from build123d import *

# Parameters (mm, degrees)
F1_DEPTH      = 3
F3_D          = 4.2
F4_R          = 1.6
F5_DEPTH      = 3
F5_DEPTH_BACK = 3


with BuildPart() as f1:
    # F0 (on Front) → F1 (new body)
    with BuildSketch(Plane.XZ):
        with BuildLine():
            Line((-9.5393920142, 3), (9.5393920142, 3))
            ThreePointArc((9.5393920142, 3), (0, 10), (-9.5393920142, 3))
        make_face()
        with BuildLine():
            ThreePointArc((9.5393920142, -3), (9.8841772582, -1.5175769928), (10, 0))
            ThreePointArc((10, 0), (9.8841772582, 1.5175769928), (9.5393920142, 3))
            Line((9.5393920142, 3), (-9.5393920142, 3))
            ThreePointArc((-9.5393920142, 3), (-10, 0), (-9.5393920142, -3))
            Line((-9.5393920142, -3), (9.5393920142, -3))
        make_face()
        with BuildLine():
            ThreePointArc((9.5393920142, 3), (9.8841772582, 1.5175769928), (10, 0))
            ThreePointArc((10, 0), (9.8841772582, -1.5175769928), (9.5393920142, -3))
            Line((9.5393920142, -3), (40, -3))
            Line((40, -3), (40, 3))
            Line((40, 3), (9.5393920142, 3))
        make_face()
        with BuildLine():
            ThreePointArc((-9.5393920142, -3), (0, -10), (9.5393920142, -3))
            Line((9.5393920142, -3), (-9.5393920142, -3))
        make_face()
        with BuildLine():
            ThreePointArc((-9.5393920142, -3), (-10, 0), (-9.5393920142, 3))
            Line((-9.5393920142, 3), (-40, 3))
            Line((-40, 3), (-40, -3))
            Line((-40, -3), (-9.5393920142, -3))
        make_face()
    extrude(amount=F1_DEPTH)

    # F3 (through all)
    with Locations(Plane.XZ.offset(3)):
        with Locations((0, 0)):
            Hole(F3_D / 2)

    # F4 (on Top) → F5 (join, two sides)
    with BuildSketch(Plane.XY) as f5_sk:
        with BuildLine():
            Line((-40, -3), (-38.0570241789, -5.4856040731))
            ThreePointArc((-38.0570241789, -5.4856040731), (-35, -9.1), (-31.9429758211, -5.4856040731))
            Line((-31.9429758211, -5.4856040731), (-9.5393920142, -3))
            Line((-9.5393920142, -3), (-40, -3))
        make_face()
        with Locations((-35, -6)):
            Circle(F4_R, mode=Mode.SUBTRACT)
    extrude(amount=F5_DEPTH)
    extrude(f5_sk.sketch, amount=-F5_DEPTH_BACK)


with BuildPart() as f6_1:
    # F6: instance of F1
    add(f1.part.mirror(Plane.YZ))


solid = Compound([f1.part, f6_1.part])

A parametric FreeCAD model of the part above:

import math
import FreeCAD as App
import Part
import Sketcher

V = App.Vector
Q = App.Units.Quantity

doc = App.newDocument("Part")
params = doc.addObject("Spreadsheet::Sheet", "Params")
for row, (alias, value) in enumerate([
    ("sketch1_radius", "10 mm"),
    ("sketch1_height", "6 mm"),
    ("pad1_length", "3 mm"),
    ("sketch2_diameter", "4.2 mm"),
    ("hole_diameter", "4.2 mm"),
    ("sketch3_diameter", "3.2 mm"),
    ("sketch3_radius", "3.1 mm"),
    ("pad2_length", "3 mm"),
    ("pad2_length2", "3 mm"),
], start=1):
    params.set(f"A{row}", alias)
    params.set(f"B{row}", "=" + value)
    params.setAlias(f"B{row}", alias)

body = doc.addObject("PartDesign::Body", "Body")

# Sketch on XZ plane
sketch1 = body.newObject("Sketcher::SketchObject", "Sketch")
sketch1.AttachmentSupport = (doc.getObject("XZ_Plane"), [""])
sketch1.MapMode = "FlatFace"
sketch1.addGeometry([
    Part.ArcOfCircle(Part.Circle(V(0, 0, 0), V(0, 0, 1), 10), math.radians(17.457603), math.radians(162.542397)),  # 0
    Part.LineSegment(V(-9.539392, 3, 0), V(-40, 3, 0)),  # 1
    Part.LineSegment(V(-40, 3, 0), V(-40, -3, 0)),  # 2
    Part.LineSegment(V(-40, -3, 0), V(-9.539392, -3, 0)),  # 3
    Part.ArcOfCircle(Part.Circle(V(0, 0, 0), V(0, 0, 1), 10), math.radians(-162.542397), math.radians(-17.457603)),  # 4
    Part.LineSegment(V(9.539392, -3, 0), V(40, -3, 0)),  # 5
    Part.LineSegment(V(40, -3, 0), V(40, 3, 0)),  # 6
    Part.LineSegment(V(40, 3, 0), V(9.539392, 3, 0)),  # 7
], False)
sketch1.addConstraint([
    Sketcher.Constraint("Coincident", 0, 2, 1, 1),
    Sketcher.Constraint("Coincident", 1, 2, 2, 1),
    Sketcher.Constraint("Coincident", 2, 2, 3, 1),
    Sketcher.Constraint("Coincident", 3, 2, 4, 1),
    Sketcher.Constraint("Coincident", 4, 2, 5, 1),
    Sketcher.Constraint("Coincident", 5, 2, 6, 1),
    Sketcher.Constraint("Coincident", 6, 2, 7, 1),
    Sketcher.Constraint("Coincident", 7, 2, 0, 1),
    Sketcher.Constraint("Horizontal", 1),
    Sketcher.Constraint("Vertical", 2),
    Sketcher.Constraint("Horizontal", 3),
    Sketcher.Constraint("Horizontal", 5),
    Sketcher.Constraint("Vertical", 6),
    Sketcher.Constraint("Horizontal", 7),
    Sketcher.Constraint("Coincident", 0, 3, -1, 1),
    Sketcher.Constraint("Coincident", 4, 3, -1, 1),
    Sketcher.Constraint("Equal", 0, 4),
    Sketcher.Constraint("Symmetric", 1, 2, 5, 2, -1, 1),
    Sketcher.Constraint("Horizontal", 3, 2, 4, 2),
    Sketcher.Constraint("Horizontal", 1, 2, 6, 2),
    Sketcher.Constraint("Radius", 0, Q("10 mm")),
    Sketcher.Constraint("DistanceY", 2, 2, 2, 1, Q("6 mm")),
    Sketcher.Constraint("DistanceX", 1, 2, -1, 1, Q("40 mm")),
])
sketch1.setExpression("Constraints[20]", "Params.sketch1_radius")
sketch1.setExpression("Constraints[21]", "Params.sketch1_height")
pad1 = body.newObject("PartDesign::Pad", "Pad")
pad1.Profile = sketch1
pad1.setExpression("Length", "Params.pad1_length")

# Sketch on XZ plane
sketch2 = body.newObject("Sketcher::SketchObject", "Sketch001")
sketch2.AttachmentSupport = (doc.getObject("XZ_Plane"), [""])
sketch2.MapMode = "FlatFace"
sketch2.AttachmentOffset = App.Placement(V(0, 0, 3), App.Rotation())
sketch2.addGeometry(Part.Circle(V(0, 0, 0), V(0, 0, 1), 2.1), False)
sketch2.addConstraint([
    Sketcher.Constraint("Coincident", 0, 3, -1, 1),
    Sketcher.Constraint("Diameter", 0, Q("4.2 mm")),
])
sketch2.setExpression("Constraints[1]", "Params.sketch2_diameter")
doc.recompute()
hole = body.newObject("PartDesign::Hole", "Hole")
hole.Profile = sketch2
hole.ThreadType = "None"
hole.setExpression("Diameter", "Params.hole_diameter")
hole.DepthType = "ThroughAll"

# Sketch on XY plane
sketch3 = body.newObject("Sketcher::SketchObject", "Sketch002")
sketch3.AttachmentSupport = (doc.getObject("XY_Plane"), [""])
sketch3.MapMode = "FlatFace"
sketch3.addGeometry([
    Part.LineSegment(V(-40, -3, 0), V(-38.057024, -5.485604, 0)),  # 0
    Part.ArcOfCircle(Part.Circle(V(-35, -6, 0), V(0, 0, 1), 3.1), math.radians(170.448493), math.radians(369.551507)),  # 1
    Part.LineSegment(V(-31.942976, -5.485604, 0), V(-9.539392, -3, 0)),  # 2
    Part.LineSegment(V(-9.539392, -3, 0), V(-40, -3, 0)),  # 3
    Part.Circle(V(-35, -6, 0), V(0, 0, 1), 1.6),  # 4
], False)
sketch3.addConstraint([
    Sketcher.Constraint("Coincident", 0, 2, 1, 1),
    Sketcher.Constraint("Coincident", 1, 2, 2, 1),
    Sketcher.Constraint("Coincident", 2, 2, 3, 1),
    Sketcher.Constraint("Coincident", 3, 2, 0, 1),
    Sketcher.Constraint("Horizontal", 3),
    Sketcher.Constraint("Coincident", 4, 3, 1, 3),
    Sketcher.Constraint("Horizontal", 0, 2, 1, 2),
    Sketcher.Constraint("Diameter", 4, Q("3.2 mm")),
    Sketcher.Constraint("Radius", 1, Q("3.1 mm")),
    Sketcher.Constraint("DistanceX", 1, 3, -1, 1, Q("35 mm")),
    Sketcher.Constraint("DistanceY", 1, 3, -1, 1, Q("6 mm")),
    Sketcher.Constraint("DistanceY", 2, 2, -1, 1, Q("3 mm")),
    Sketcher.Constraint("DistanceX", 3, 2, -1, 1, Q("40 mm")),
    Sketcher.Constraint("Distance", 0, Q("3.154898 mm")),
    Sketcher.Constraint("DistanceX", 3, 2, 3, 1, Q("30.460608 mm")),
])
sketch3.setExpression("Constraints[7]", "Params.sketch3_diameter")
sketch3.setExpression("Constraints[8]", "Params.sketch3_radius")
pad2 = body.newObject("PartDesign::Pad", "Pad001")
pad2.Profile = sketch3
pad2.Type = "TwoLengths"
pad2.setExpression("Length", "Params.pad2_length")
pad2.setExpression("Length2", "Params.pad2_length2")
body2 = doc.addObject("PartDesign::Body", "Body001")
doc.recompute()

mirroring = doc.addObject("Part::Mirroring", "Mirroring")
mirroring.Source = body
mirroring.Base = V(0, 0, 0)
mirroring.Normal = V(1, 0, 0)
body2.BaseFeature = mirroring
doc.recompute()
mirroring.Visibility = False

doc.recompute()
